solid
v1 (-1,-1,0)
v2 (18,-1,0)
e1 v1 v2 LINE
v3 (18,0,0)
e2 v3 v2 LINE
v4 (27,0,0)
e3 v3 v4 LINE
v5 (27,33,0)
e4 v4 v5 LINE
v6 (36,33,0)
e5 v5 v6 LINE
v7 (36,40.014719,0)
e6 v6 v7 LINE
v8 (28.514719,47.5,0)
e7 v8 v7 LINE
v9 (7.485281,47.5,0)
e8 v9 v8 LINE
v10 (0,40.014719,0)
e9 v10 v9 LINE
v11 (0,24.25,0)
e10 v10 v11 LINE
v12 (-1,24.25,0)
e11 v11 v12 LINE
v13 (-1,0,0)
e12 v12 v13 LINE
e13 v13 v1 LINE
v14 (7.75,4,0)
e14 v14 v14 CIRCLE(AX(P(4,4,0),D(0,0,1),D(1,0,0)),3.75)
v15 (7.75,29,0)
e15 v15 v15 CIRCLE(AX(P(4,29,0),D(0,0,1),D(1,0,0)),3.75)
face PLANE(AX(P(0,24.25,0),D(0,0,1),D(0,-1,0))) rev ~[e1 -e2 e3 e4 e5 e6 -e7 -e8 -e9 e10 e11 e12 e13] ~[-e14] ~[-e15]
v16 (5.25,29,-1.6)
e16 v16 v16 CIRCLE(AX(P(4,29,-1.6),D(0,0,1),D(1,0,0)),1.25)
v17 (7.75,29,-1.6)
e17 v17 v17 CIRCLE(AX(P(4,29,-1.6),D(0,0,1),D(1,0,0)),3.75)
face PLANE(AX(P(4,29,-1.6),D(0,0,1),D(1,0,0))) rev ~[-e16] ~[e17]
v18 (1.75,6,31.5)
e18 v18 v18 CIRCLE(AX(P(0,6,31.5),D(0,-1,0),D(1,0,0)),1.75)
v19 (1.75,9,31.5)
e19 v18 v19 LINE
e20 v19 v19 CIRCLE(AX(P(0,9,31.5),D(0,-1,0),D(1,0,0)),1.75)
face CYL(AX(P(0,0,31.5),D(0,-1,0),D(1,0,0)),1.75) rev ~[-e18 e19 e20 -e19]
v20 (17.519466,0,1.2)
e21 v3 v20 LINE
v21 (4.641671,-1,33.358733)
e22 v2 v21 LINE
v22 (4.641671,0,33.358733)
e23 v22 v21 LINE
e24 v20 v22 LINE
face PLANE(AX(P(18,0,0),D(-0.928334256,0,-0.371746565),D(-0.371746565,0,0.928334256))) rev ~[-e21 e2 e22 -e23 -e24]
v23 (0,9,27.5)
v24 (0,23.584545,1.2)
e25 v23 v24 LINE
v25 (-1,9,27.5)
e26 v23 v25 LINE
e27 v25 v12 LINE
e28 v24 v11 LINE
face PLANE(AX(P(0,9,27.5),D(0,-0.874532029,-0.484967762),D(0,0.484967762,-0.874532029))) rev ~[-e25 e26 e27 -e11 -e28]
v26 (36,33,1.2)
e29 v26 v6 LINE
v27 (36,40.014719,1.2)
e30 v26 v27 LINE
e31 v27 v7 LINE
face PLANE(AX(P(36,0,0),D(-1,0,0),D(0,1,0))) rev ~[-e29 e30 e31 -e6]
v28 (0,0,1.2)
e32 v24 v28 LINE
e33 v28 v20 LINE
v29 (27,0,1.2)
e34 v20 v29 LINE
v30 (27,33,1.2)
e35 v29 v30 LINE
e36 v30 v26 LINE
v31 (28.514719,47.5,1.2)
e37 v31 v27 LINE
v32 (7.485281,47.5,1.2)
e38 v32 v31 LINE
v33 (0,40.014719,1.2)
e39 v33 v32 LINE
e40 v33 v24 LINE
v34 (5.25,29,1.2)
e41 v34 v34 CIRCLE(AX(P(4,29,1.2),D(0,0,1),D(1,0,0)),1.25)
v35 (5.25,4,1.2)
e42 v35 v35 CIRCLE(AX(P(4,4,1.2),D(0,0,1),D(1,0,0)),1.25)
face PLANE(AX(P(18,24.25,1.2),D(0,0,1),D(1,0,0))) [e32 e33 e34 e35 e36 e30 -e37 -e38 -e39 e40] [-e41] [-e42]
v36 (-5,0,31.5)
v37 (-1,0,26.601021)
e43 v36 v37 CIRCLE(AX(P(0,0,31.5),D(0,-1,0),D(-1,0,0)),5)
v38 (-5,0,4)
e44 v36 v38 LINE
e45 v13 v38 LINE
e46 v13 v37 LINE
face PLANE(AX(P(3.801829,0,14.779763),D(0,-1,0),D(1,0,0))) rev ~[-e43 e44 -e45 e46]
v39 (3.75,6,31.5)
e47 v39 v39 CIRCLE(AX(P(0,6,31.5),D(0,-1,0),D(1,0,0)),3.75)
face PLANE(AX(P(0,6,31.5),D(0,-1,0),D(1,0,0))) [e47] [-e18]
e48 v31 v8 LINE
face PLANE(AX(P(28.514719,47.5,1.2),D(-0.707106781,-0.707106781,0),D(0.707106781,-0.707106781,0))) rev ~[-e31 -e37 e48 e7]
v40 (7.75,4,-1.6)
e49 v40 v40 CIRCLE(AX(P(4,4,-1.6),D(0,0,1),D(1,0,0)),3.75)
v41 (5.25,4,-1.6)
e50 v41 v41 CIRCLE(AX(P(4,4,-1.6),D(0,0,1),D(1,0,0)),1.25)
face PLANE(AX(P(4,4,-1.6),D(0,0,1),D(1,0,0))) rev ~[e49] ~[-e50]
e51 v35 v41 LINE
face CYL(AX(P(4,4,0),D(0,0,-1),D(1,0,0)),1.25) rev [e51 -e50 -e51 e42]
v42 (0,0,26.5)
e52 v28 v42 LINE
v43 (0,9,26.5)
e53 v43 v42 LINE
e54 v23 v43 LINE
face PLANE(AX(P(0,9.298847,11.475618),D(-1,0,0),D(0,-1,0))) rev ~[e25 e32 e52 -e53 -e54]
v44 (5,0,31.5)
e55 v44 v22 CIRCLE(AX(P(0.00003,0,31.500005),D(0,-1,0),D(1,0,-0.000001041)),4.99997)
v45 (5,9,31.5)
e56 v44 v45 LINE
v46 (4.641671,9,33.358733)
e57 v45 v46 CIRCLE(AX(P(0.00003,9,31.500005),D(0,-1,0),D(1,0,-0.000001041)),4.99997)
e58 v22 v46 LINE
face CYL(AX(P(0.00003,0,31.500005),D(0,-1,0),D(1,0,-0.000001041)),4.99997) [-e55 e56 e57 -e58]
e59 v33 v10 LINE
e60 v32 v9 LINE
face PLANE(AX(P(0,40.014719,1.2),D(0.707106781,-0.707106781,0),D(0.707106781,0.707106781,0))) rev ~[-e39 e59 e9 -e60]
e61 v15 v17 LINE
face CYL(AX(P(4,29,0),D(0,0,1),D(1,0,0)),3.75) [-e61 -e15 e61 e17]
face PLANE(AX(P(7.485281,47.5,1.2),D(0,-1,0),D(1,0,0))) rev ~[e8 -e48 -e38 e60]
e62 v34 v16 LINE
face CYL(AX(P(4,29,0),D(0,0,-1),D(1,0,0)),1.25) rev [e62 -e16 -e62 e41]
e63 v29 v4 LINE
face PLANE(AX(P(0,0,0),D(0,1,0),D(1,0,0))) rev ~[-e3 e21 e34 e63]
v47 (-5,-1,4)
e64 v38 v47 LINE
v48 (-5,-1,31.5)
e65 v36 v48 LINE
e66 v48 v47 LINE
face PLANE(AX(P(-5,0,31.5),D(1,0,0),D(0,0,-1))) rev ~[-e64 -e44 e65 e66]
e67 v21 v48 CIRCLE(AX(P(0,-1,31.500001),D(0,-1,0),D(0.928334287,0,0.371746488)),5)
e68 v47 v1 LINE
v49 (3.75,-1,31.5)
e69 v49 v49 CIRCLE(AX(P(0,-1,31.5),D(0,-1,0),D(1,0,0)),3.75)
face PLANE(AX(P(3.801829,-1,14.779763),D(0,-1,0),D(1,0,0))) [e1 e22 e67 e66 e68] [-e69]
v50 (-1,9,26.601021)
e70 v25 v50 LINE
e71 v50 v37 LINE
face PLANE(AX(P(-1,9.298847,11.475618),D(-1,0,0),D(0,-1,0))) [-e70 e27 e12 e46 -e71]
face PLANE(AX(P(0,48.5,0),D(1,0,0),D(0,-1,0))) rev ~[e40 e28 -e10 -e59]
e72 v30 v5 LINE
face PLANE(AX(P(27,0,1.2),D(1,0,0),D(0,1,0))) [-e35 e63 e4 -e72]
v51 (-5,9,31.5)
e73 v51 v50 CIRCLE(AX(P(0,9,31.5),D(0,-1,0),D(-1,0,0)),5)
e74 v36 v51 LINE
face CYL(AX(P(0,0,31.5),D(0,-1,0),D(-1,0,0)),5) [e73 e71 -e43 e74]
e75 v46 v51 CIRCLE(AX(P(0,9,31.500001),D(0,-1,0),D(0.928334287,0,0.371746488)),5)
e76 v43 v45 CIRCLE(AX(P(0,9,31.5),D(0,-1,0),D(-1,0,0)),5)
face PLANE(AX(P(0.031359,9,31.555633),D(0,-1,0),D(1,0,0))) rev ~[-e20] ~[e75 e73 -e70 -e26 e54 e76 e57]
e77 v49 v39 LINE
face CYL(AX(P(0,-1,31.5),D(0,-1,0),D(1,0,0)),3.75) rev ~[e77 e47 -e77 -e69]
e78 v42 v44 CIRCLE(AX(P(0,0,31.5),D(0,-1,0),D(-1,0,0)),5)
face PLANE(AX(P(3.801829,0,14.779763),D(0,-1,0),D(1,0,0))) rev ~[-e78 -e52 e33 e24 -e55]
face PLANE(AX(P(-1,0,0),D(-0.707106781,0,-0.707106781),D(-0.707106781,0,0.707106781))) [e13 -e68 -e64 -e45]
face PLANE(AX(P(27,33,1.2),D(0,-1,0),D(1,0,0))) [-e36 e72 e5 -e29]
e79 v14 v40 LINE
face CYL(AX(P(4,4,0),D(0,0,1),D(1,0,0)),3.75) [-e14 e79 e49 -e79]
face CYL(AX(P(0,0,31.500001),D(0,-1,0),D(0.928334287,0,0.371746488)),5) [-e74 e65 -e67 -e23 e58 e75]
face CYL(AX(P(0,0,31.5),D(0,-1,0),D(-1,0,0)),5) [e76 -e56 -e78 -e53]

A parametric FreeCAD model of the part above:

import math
import FreeCAD as App
import Part
import Sketcher
from FreeCAD import Vector

doc = App.newDocument("Part")
body = doc.addObject("PartDesign::Body", "Body")

sketch1 = body.newObject("Sketcher::SketchObject", "Sketch")
sketch1.AttachmentSupport = (doc.getObject("XY_Plane"), [""])
sketch1.MapMode = "FlatFace"
sketch1.addGeometry(Part.LineSegment(Vector(0, 0, 0), Vector(36, 0, 0)), False)
sketch1.addGeometry(Part.LineSegment(Vector(36, 0, 0), Vector(36, 48.5, 0)), False)
sketch1.addGeometry(Part.LineSegment(Vector(36, 48.5, 0), Vector(0, 48.5, 0)), False)
sketch1.addGeometry(Part.LineSegment(Vector(0, 48.5, 0), Vector(0, 0, 0)), False)
sketch1.addGeometry(Part.Circle(Vector(4, 4, 0), Vector(0, 0, 1), 1.25), False)
sketch1.addGeometry(Part.Circle(Vector(4, 29, 0), Vector(0, 0, 1), 1.25), False)
sketch1.addConstraint(Sketcher.Constraint("Coincident", 0, 2, 1, 1))
sketch1.addConstraint(Sketcher.Constraint("Coincident", 1, 2, 2, 1))
sketch1.addConstraint(Sketcher.Constraint("Coincident", 2, 2, 3, 1))
sketch1.addConstraint(Sketcher.Constraint("Coincident", 3, 2, 0, 1))
sketch1.addConstraint(Sketcher.Constraint("Horizontal", 0))
sketch1.addConstraint(Sketcher.Constraint("Vertical", 1))
sketch1.addConstraint(Sketcher.Constraint("Horizontal", 2))
sketch1.addConstraint(Sketcher.Constraint("Vertical", 3))
sketch1.addConstraint(Sketcher.Constraint("Coincident", 3, 2, -1, 1))
sketch1.addConstraint(Sketcher.Constraint("Equal", 4, 5))
sketch1.addConstraint(Sketcher.Constraint("Vertical", 4, 3, 5, 3))
sketch1.addConstraint(Sketcher.Constraint("Diameter", 4, 2.5))
sketch1.addConstraint(Sketcher.Constraint("DistanceX", 0, 1, 0, 2, 36.0))
sketch1.addConstraint(Sketcher.Constraint("DistanceY", 1, 1, 1, 2, 48.5))
sketch1.addConstraint(Sketcher.Constraint("DistanceX", -1, 1, 4, 3, 4.0))
sketch1.addConstraint(Sketcher.Constraint("DistanceY", -1, 1, 4, 3, 4.0))
sketch1.addConstraint(Sketcher.Constraint("DistanceY", -1, 1, 5, 3, 29.0))
pad1 = body.newObject("PartDesign::Pad", "Pad")
pad1.Profile = sketch1
pad1.Length = 1.2

sketch2 = body.newObject("Sketcher::SketchObject", "Sketch001")
sketch2.AttachmentSupport = (doc.getObject("XY_Plane"), [""])
sketch2.MapMode = "FlatFace"
sketch2.addGeometry(Part.Circle(Vector(4, 29, 0), Vector(0, 0, 1), 3.75), False)
sketch2.addGeometry(Part.Circle(Vector(4, 29, 0), Vector(0, 0, 1), 1.25), False)
sketch2.addGeometry(Part.Circle(Vector(4, 4, 0), Vector(0, 0, 1), 3.75), False)
sketch2.addGeometry(Part.Circle(Vector(4, 4, 0), Vector(0, 0, 1), 1.25), False)
sketch2.addConstraint(Sketcher.Constraint("Coincident", 1, 3, 0, 3))
sketch2.addConstraint(Sketcher.Constraint("Coincident", 3, 3, 2, 3))
sketch2.addConstraint(Sketcher.Constraint("Equal", 0, 2))
sketch2.addConstraint(Sketcher.Constraint("Equal", 1, 3))
sketch2.addConstraint(Sketcher.Constraint("Vertical", 1, 3, 2, 3))
sketch2.addConstraint(Sketcher.Constraint("Diameter", 0, 7.5))
sketch2.addConstraint(Sketcher.Constraint("Diameter", 1, 2.5))
sketch2.addConstraint(Sketcher.Constraint("DistanceX", -1, 1, 0, 3, 4.0))
sketch2.addConstraint(Sketcher.Constraint("DistanceY", -1, 1, 0, 3, 29.0))
sketch2.addConstraint(Sketcher.Constraint("DistanceY", -1, 1, 2, 3, 4.0))
pad2 = body.newObject("PartDesign::Pad", "Pad001")
pad2.Profile = sketch2
pad2.Length = 1.6
pad2.Reversed = True

sketch3 = body.newObject("Sketcher::SketchObject", "Sketch002")
sketch3.AttachmentSupport = (doc.getObject("XZ_Plane"), [""])
sketch3.MapMode = "FlatFace"
sketch3.addGeometry(Part.LineSegment(Vector(-5, 31.5, 0), Vector(-5, 0, 0)), False)
sketch3.addGeometry(Part.LineSegment(Vector(-5, 0, 0), Vector(18, 0, 0)), False)
sketch3.addGeometry(Part.LineSegment(Vector(18, 0, 0), Vector(4.641671, 33.358733, 0)), False)
sketch3.addGeometry(Part.ArcOfCircle(Part.Circle(Vector(0, 31.500001, 0), Vector(0, 0, 1), 5), math.radians(21.823368), math.radians(180.000007)), False)
sketch3.addGeometry(Part.Circle(Vector(0, 31.5, 0), Vector(0, 0, 1), 1.75), False)
sketch3.addConstraint(Sketcher.Constraint("Coincident", 0, 2, 1, 1))
sketch3.addConstraint(Sketcher.Constraint("Coincident", 1, 2, 2, 1))
sketch3.addConstraint(Sketcher.Constraint("Tangent", 2, 2, 3, 1))
sketch3.addConstraint(Sketcher.Constraint("Tangent", 3, 2, 0, 1))
sketch3.addConstraint(Sketcher.Constraint("Vertical", 0))
sketch3.addConstraint(Sketcher.Constraint("Horizontal", 1))
sketch3.addConstraint(Sketcher.Constraint("Coincident", 4, 3, 3, 3))
sketch3.addConstraint(Sketcher.Constraint("PointOnObject", 3, 3, -2))
sketch3.addConstraint(Sketcher.Constraint("PointOnObject", 0, 2, -1))
sketch3.addConstraint(Sketcher.Constraint("Radius", 3, 5.0))
sketch3.addConstraint(Sketcher.Constraint("Diameter", 4, 3.5))
sketch3.addConstraint(Sketcher.Constraint("DistanceX", 1, 1, 1, 2, 23.0))
sketch3.addConstraint(Sketcher.Constraint("DistanceY", 0, 2, 0, 1, 31.5))
pad3 = body.newObject("PartDesign::Pad", "Pad002")
pad3.Profile = sketch3
pad3.Length = 1

sketch4 = body.newObject("Sketcher::SketchObject", "Sketch003")
sketch4.AttachmentSupport = (doc.getObject("XZ_Plane"), [""])
sketch4.MapMode = "FlatFace"
sketch4.addGeometry(Part.ArcOfCircle(Part.Circle(Vector(0, 31.5, 0), Vector(0, 0, 1), 5), math.radians(180), math.radians(360)), False)
sketch4.addGeometry(Part.ArcOfCircle(Part.Circle(Vector(0.00003, 31.500005, 0), Vector(0, 0, 1), 4.99997), math.radians(-0.00006), math.radians(21.823447)), False)
sketch4.addGeometry(Part.ArcOfCircle(Part.Circle(Vector(0, 31.500001, 0), Vector(0, 0, 1), 5), math.radians(21.823368), math.radians(180.000007)), False)
sketch4.addGeometry(Part.Circle(Vector(0, 31.5, 0), Vector(0, 0, 1), 1.75), False)
sketch4.addConstraint(Sketcher.Constraint("Coincident", 0, 2, 1, 1))
sketch4.addConstraint(Sketcher.Constraint("Coincident", 1, 2, 2, 1))
sketch4.addConstraint(Sketcher.Constraint("Coincident", 2, 2, 0, 1))
sketch4.addConstraint(Sketcher.Constraint("Coincident", 2, 3, 0, 3))
sketch4.addConstraint(Sketcher.Constraint("Coincident", 3, 3, 0, 3))
sketch4.addConstraint(Sketcher.Constraint("PointOnObject", 0, 3, -2))
sketch4.addConstraint(Sketcher.Constraint("Radius", 0, 5.0))
sketch4.addConstraint(Sketcher.Constraint("Diameter", 3, 3.5))
sketch4.addConstraint(Sketcher.Constraint("DistanceY", -1, 1, 0, 3, 31.5))
sketch4.addConstraint(Sketcher.Constraint("DistanceY", -1, 1, 0, 2, 31.5))
sketch4.addConstraint(Sketcher.Constraint("DistanceY", -1, 1, 2, 2, 31.5))
sketch4.addConstraint(Sketcher.Constraint("Radius", 1, 4.99997))
sketch4.addConstraint(Sketcher.Constraint("DistanceX", -1, 1, 1, 2, 4.641671))
pad4 = body.newObject("PartDesign::Pad", "Pad003")
pad4.Profile = sketch4
pad4.Length = 9
pad4.Reversed = True

sketch5 = body.newObject("Sketcher::SketchObject", "Sketch004")
sketch5.AttachmentSupport = (doc.getObject("YZ_Plane"), [""])
sketch5.MapMode = "FlatFace"
sketch5.addGeometry(Part.LineSegment(Vector(9, 27.5, 0), Vector(24.25, 0, 0)), False)
sketch5.addGeometry(Part.LineSegment(Vector(24.25, 0, 0), Vector(0, 0, 0)), False)
sketch5.addGeometry(Part.LineSegment(Vector(0, 0, 0), Vector(0, 27.5, 0)), False)
sketch5.addGeometry(Part.LineSegment(Vector(0, 27.5, 0), Vector(9, 27.5, 0)), False)
sketch5.addConstraint(Sketcher.Constraint("Coincident", 0, 2, 1, 1))
sketch5.addConstraint(Sketcher.Constraint("Coincident", 1, 2, 2, 1))
sketch5.addConstraint(Sketcher.Constraint("Coincident", 2, 2, 3, 1))
sketch5.addConstraint(Sketcher.Constraint("Coincident", 3, 2, 0, 1))
sketch5.addConstraint(Sketcher.Constraint("Horizontal", 1))
sketch5.addConstraint(Sketcher.Constraint("Vertical", 2))
sketch5.addConstraint(Sketcher.Constraint("Horizontal", 3))
sketch5.addConstraint(Sketcher.Constraint("Coincident", 1, 2, -1, 1))
sketch5.addConstraint(Sketcher.Constraint("DistanceX", 3, 1, 3, 2, 9.0))
sketch5.addConstraint(Sketcher.Constraint("DistanceY", 2, 1, 2, 2, 27.5))
sketch5.addConstraint(Sketcher.Constraint("DistanceX", 1, 2, 1, 1, 24.25))
pad5 = body.newObject("PartDesign::Pad", "Pad004")
pad5.Profile = sketch5
pad5.Length = 1
pad5.Reversed = True

sketch6 = body.newObject("Sketcher::SketchObject", "Sketch005")
sketch6.AttachmentSupport = (doc.getObject("XZ_Plane"), [""])
sketch6.MapMode = "FlatFace"
sketch6.addGeometry(Part.LineSegment(Vector(-5, 0, 0), Vector(-1, 0, 0)), False)
sketch6.addGeometry(Part.LineSegment(Vector(-1, 0, 0), Vector(-5, 4, 0)), False)
sketch6.addGeometry(Part.LineSegment(Vector(-5, 4, 0), Vector(-5, 0, 0)), False)
sketch6.addConstraint(Sketcher.Constraint("Coincident", 0, 2, 1, 1))
sketch6.addConstraint(Sketcher.Constraint("Coincident", 1, 2, 2, 1))
sketch6.addConstraint(Sketcher.Constraint("Coincident", 2, 2, 0, 1))
sketch6.addConstraint(Sketcher.Constraint("Horizontal", 0))
sketch6.addConstraint(Sketcher.Constraint("Vertical", 2))
sketch6.addConstraint(Sketcher.Constraint("PointOnObject", 0, 2, -1))
sketch6.addConstraint(Sketcher.Constraint("Equal", 0, 2))
sketch6.addConstraint(Sketcher.Constraint("DistanceX", 0, 1, 0, 2, 4.0))
sketch6.addConstraint(Sketcher.Constraint("DistanceX", 0, 2, -1, 1, 1.0))
pocket1 = body.newObject("PartDesign::Pocket", "Pocket")
pocket1.Profile = sketch6
pocket1.Type = "ThroughAll"
pocket1.Reversed = True

sketch7 = body.newObject("Sketcher::SketchObject", "Sketch006")
sketch7.AttachmentSupport = (doc.getObject("XZ_Plane"), [""])
sketch7.MapMode = "FlatFace"
sketch7.AttachmentOffset = App.Placement(Vector(0, 0, 1), App.Rotation())
sketch7.addGeometry(Part.Circle(Vector(0, 31.5, 0), Vector(0, 0, 1), 3.75), False)
sketch7.addConstraint(Sketcher.Constraint("PointOnObject", 0, 3, -2))
sketch7.addConstraint(Sketcher.Constraint("Diameter", 0, 7.5))
sketch7.addConstraint(Sketcher.Constraint("DistanceY", -1, 1, 0, 3, 31.5))
pocket2 = body.newObject("PartDesign::Pocket", "Pocket001")
pocket2.Profile = sketch7
pocket2.Length = 7

sketch8 = body.newObject("Sketcher::SketchObject", "Sketch007")
sketch8.AttachmentSupport = (doc.getObject("XY_Plane"), [""])
sketch8.MapMode = "FlatFace"
sketch8.AttachmentOffset = App.Placement(Vector(0, 0, 1.2), App.Rotation())
sketch8.addGeometry(Part.LineSegment(Vector(36, 48.5, 0), Vector(0, 48.5, 0)), False)
sketch8.addGeometry(Part.LineSegment(Vector(0, 48.5, 0), Vector(0, 40.014719, 0)), False)
sketch8.addGeometry(Part.LineSegment(Vector(0, 40.014719, 0), Vector(7.485281, 47.5, 0)), False)
sketch8.addGeometry(Part.LineSegment(Vector(7.485281, 47.5, 0), Vector(28.514719, 47.5, 0)), False)
sketch8.addGeometry(Part.LineSegment(Vector(28.514719, 47.5, 0), Vector(36, 40.014719, 0)), False)
sketch8.addGeometry(Part.LineSegment(Vector(36, 40.014719, 0), Vector(36, 48.5, 0)), False)
sketch8.addGeometry(Part.LineSegment(Vector(27, 33, 0), Vector(27, 0, 0)), False)
sketch8.addGeometry(Part.LineSegment(Vector(27, 0, 0), Vector(36, 0, 0)), False)
sketch8.addGeometry(Part.LineSegment(Vector(36, 0, 0), Vector(36, 33, 0)), False)
sketch8.addGeometry(Part.LineSegment(Vector(36, 33, 0), Vector(27, 33, 0)), False)
sketch8.addConstraint(Sketcher.Constraint("Coincident", 0, 2, 1, 1))
sketch8.addConstraint(Sketcher.Constraint("Coincident", 1, 2, 2, 1))
sketch8.addConstraint(Sketcher.Constraint("Coincident", 2, 2, 3, 1))
sketch8.addConstraint(Sketcher.Constraint("Coincident", 3, 2, 4, 1))
sketch8.addConstraint(Sketcher.Constraint("Coincident", 4, 2, 5, 1))
sketch8.addConstraint(Sketcher.Constraint("Coincident", 5, 2, 0, 1))
sketch8.addConstraint(Sketcher.Constraint("Coincident", 6, 2, 7, 1))
sketch8.addConstraint(Sketcher.Constraint("Coincident", 7, 2, 8, 1))
sketch8.addConstraint(Sketcher.Constraint("Coincident", 8, 2, 9, 1))
sketch8.addConstraint(Sketcher.Constraint("Coincident", 9, 2, 6, 1))
sketch8.addConstraint(Sketcher.Constraint("Horizontal", 0))
sketch8.addConstraint(Sketcher.Constraint("Vertical", 1))
sketch8.addConstraint(Sketcher.Constraint("Horizontal", 3))
sketch8.addConstraint(Sketcher.Constraint("Vertical", 5))
sketch8.addConstraint(Sketcher.Constraint("Vertical", 6))
sketch8.addConstraint(Sketcher.Constraint("Horizontal", 7))
sketch8.addConstraint(Sketcher.Constraint("Vertical", 8))
sketch8.addConstraint(Sketcher.Constraint("Horizontal", 9))
sketch8.addConstraint(Sketcher.Constraint("PointOnObject", 0, 2, -2))
sketch8.addConstraint(Sketcher.Constraint("PointOnObject", 6, 2, -1))
sketch8.addConstraint(Sketcher.Constraint("Perpendicular", 2, 4))
sketch8.addConstraint(Sketcher.Constraint("Horizontal", 1, 2, 4, 2))
sketch8.addConstraint(Sketcher.Constraint("Vertical", 5, 2, 7, 2))
sketch8.addConstraint(Sketcher.Constraint("Equal", 2, 4))
sketch8.addConstraint(Sketcher.Constraint("DistanceX", 0, 2, 0, 1, 36.0))
sketch8.addConstraint(Sketcher.Constraint("DistanceX", 7, 1, 7, 2, 9.0))
sketch8.addConstraint(Sketcher.Constraint("DistanceY", 6, 2, 6, 1, 33.0))
sketch8.addConstraint(Sketcher.Constraint("DistanceY", 2, 2, 0, 2, 1.0))
sketch8.addConstraint(Sketcher.Constraint("DistanceY", -1, 1, 0, 2, 48.5))
sketch8.addConstraint(Sketcher.Constraint("DistanceY", 1, 2, 1, 1, 8.485281))
pocket3 = body.newObject("PartDesign::Pocket", "Pocket002")
pocket3.Profile = sketch8
pocket3.Type = "ThroughAll"

doc.recompute()
